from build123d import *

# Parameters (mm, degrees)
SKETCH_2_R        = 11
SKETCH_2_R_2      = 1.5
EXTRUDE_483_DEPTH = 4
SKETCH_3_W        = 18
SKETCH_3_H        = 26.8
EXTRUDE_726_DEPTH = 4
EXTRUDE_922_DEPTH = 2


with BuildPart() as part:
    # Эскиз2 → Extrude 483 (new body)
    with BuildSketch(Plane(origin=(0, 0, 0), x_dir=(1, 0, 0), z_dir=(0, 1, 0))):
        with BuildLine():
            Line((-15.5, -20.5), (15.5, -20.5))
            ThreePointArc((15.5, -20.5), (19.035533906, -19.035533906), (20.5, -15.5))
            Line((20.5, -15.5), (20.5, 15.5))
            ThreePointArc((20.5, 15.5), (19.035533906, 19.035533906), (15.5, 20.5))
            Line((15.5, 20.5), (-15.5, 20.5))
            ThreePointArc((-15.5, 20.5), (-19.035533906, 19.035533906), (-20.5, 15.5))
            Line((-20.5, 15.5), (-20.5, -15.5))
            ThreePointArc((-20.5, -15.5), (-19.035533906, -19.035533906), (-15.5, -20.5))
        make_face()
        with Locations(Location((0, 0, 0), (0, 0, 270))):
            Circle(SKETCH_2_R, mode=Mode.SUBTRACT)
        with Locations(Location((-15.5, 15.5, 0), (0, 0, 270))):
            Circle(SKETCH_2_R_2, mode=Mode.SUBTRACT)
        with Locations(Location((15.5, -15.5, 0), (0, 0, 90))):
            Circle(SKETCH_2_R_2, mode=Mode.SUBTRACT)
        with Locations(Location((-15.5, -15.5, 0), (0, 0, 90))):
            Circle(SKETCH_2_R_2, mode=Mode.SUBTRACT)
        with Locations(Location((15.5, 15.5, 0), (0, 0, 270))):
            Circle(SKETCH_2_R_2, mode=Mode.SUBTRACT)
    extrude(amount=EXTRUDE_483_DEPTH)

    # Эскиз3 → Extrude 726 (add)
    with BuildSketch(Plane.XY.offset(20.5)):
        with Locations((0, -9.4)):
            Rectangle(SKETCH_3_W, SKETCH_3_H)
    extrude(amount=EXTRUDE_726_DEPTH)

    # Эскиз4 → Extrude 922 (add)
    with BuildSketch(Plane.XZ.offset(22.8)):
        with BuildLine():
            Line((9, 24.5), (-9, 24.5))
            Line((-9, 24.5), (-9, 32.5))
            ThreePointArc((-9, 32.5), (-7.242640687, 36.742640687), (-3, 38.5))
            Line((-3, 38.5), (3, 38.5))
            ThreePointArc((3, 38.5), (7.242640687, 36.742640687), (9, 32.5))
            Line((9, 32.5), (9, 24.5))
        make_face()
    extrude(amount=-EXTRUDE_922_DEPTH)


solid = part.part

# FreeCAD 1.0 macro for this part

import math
import FreeCAD as App
import Part
import Sketcher
from FreeCAD import Vector


def add_polygon(sketch, points):
    """Adds a closed chain of lines whose ends are joined by coincident constraints."""
    first, n = sketch.GeometryCount, len(points)
    for a, b in zip(points, points[1:] + points[:1]):
        sketch.addGeometry(Part.LineSegment(App.Vector(*a, 0), App.Vector(*b, 0)), False)
    for i in range(n):
        sketch.addConstraint(Sketcher.Constraint("Coincident", first + i, 2, first + (i + 1) % n, 1))

doc = App.newDocument("Part")
body = doc.addObject("PartDesign::Body", "Body")

# Sketch on XZ plane
sketch1 = body.newObject("Sketcher::SketchObject", "Sketch")
sketch1.AttachmentSupport = (doc.getObject("XZ_Plane"), [""])
sketch1.MapMode = "FlatFace"
sketch1.addGeometry([
    Part.LineSegment(Vector(-15.5, 20.5, 0), Vector(15.5, 20.5, 0)),  # 0
    Part.ArcOfCircle(Part.Circle(Vector(15.5, 15.5, 0), Vector(0, 0, 1), 5), math.radians(0), math.radians(90)),  # 1
    Part.LineSegment(Vector(20.5, 15.5, 0), Vector(20.5, -15.5, 0)),  # 2
    Part.ArcOfCircle(Part.Circle(Vector(15.5, -15.5, 0), Vector(0, 0, 1), 5), math.radians(-90), math.radians(0)),  # 3
    Part.LineSegment(Vector(15.5, -20.5, 0), Vector(-15.5, -20.5, 0)),  # 4
    Part.ArcOfCircle(Part.Circle(Vector(-15.5, -15.5, 0), Vector(0, 0, 1), 5), math.radians(180), math.radians(270)),  # 5
    Part.LineSegment(Vector(-20.5, -15.5, 0), Vector(-20.5, 15.5, 0)),  # 6
    Part.ArcOfCircle(Part.Circle(Vector(-15.5, 15.5, 0), Vector(0, 0, 1), 5), math.radians(90), math.radians(180)),  # 7
    Part.Circle(Vector(-15.5, 15.5, 0), Vector(0, 0, 1), 1.5),  # 8
    Part.Circle(Vector(15.5, 15.5, 0), Vector(0, 0, 1), 1.5),  # 9
    Part.Circle(Vector(-15.5, -15.5, 0), Vector(0, 0, 1), 1.5),  # 10
    Part.Circle(Vector(0, 0, 0), Vector(0, 0, 1), 11),  # 11
    Part.Circle(Vector(15.5, -15.5, 0), Vector(0, 0, 1), 1.5),  # 12
], False)
sketch1.addConstraint([
    Sketcher.Constraint("Tangent", 0, 2, 1, 2),
    Sketcher.Constraint("Tangent", 1, 1, 2, 1),
    Sketcher.Constraint("Tangent", 2, 2, 3, 2),
    Sketcher.Constraint("Tangent", 3, 1, 4, 1),
    Sketcher.Constraint("Tangent", 4, 2, 5, 2),
    Sketcher.Constraint("Tangent", 5, 1, 6, 1),
    Sketcher.Constraint("Tangent", 6, 2, 7, 2),
    Sketcher.Constraint("Tangent", 7, 1, 0, 1),
    Sketcher.Constraint("Horizontal", 0),
    Sketcher.Constraint("Vertical", 2),
    Sketcher.Constraint("Horizontal", 4),
    Sketcher.Constraint("Vertical", 6),
    Sketcher.Constraint("Coincident", 11, 3, -1, 1),
    Sketcher.Constraint("Coincident", 8, 3, 7, 3),
    Sketcher.Constraint("Coincident", 9, 3, 1, 3),
    Sketcher.Constraint("Coincident", 10, 3, 5, 3),
    Sketcher.Constraint("Coincident", 12, 3, 3, 3),
    Sketcher.Constraint("Equal", 1, 3),
    Sketcher.Constraint("Equal", 3, 5),
    Sketcher.Constraint("Equal", 5, 7),
    Sketcher.Constraint("Equal", 8, 9),
    Sketcher.Constraint("Equal", 9, 10),
    Sketcher.Constraint("Equal", 10, 12),
    Sketcher.Constraint("Symmetric", 1, 3, 5, 3, -1, 1),
    Sketcher.Constraint("Equal", 4, 2),
    Sketcher.Constraint("Diameter", 8, 3.0),
    Sketcher.Constraint("Diameter", 11, 22.0),
    Sketcher.Constraint("Radius", 1, 5.0),
    Sketcher.Constraint("DistanceX", 0, 1, 0, 2, 31.0),
])
pad1 = body.newObject("PartDesign::Pad", "Pad")
pad1.Profile = sketch1
pad1.Length = 4
pad1.Reversed = True

# Sketch on XY plane
sketch2 = body.newObject("Sketcher::SketchObject", "Sketch001")
sketch2.AttachmentSupport = (doc.getObject("XY_Plane"), [""])
sketch2.MapMode = "FlatFace"
sketch2.AttachmentOffset = App.Placement(Vector(0, 0, 20.5), App.Rotation())
add_polygon(sketch2, [(-9, 4), (-9, -23), (9, -23), (9, 4)])  # lines 0-3
sketch2.addConstraint([
    Sketcher.Constraint("Vertical", 0),
    Sketcher.Constraint("Horizontal", 1),
    Sketcher.Constraint("Vertical", 2),
    Sketcher.Constraint("Horizontal", 3),
    Sketcher.Constraint("DistanceX", 1, 1, 1, 2, 18.0),
    Sketcher.Constraint("DistanceY", 0, 2, 0, 1, 26.8),
    Sketcher.Constraint("DistanceX", 0, 2, -1, 1, 9.0),
    Sketcher.Constraint("DistanceY", -1, 1, 2, 2, 4.0),
])
pad2 = body.newObject("PartDesign::Pad", "Pad001")
pad2.Profile = sketch2
pad2.Length = 4

# Sketch on XZ plane
sketch3 = body.newObject("Sketcher::SketchObject", "Sketch002")
sketch3.AttachmentSupport = (doc.getObject("XZ_Plane"), [""])
sketch3.MapMode = "FlatFace"
sketch3.AttachmentOffset = App.Placement(Vector(0, 0, 22.8), App.Rotation())
sketch3.addGeometry([
    Part.LineSegment(Vector(-9, 24, 0), Vector(9, 24, 0)),  # 0
    Part.LineSegment(Vector(9, 24, 0), Vector(9, 32, 0)),  # 1
    Part.ArcOfCircle(Part.Circle(Vector(3, 32, 0), Vector(0, 0, 1), 6), math.radians(0), math.radians(90)),  # 2
    Part.LineSegment(Vector(3, 38, 0), Vector(-3, 38, 0)),  # 3
    Part.ArcOfCircle(Part.Circle(Vector(-3, 32, 0), Vector(0, 0, 1), 6), math.radians(90), math.radians(180)),  # 4
    Part.LineSegment(Vector(-9, 32, 0), Vector(-9, 24, 0)),  # 5
], False)
sketch3.addConstraint([
    Sketcher.Constraint("Coincident", 0, 2, 1, 1),
    Sketcher.Constraint("Tangent", 1, 2, 2, 1),
    Sketcher.Constraint("Tangent", 2, 2, 3, 1),
    Sketcher.Constraint("Tangent", 3, 2, 4, 1),
    Sketcher.Constraint("Tangent", 4, 2, 5, 1),
    Sketcher.Constraint("Coincident", 5, 2, 0, 1),
    Sketcher.Constraint("Horizontal", 0),
    Sketcher.Constraint("Vertical", 1),
    Sketcher.Constraint("Horizontal", 3),
    Sketcher.Constraint("Vertical", 5),
    Sketcher.Constraint("Equal", 2, 4),
    Sketcher.Constraint("Radius", 2, 6.0),
    Sketcher.Constraint("DistanceX", 0, 1, 0, 2, 18.0),
    Sketcher.Constraint("DistanceY", 1, 1, 1, 2, 8.0),
    Sketcher.Constraint("DistanceX", -1, 1, 2, 3, 3.0),
    Sketcher.Constraint("DistanceY", -1, 1, 2, 3, 32.5),
])
pad3 = body.newObject("PartDesign::Pad", "Pad002")
pad3.Profile = sketch3
pad3.Length = 2
pad3.Reversed = True

doc.recompute()
